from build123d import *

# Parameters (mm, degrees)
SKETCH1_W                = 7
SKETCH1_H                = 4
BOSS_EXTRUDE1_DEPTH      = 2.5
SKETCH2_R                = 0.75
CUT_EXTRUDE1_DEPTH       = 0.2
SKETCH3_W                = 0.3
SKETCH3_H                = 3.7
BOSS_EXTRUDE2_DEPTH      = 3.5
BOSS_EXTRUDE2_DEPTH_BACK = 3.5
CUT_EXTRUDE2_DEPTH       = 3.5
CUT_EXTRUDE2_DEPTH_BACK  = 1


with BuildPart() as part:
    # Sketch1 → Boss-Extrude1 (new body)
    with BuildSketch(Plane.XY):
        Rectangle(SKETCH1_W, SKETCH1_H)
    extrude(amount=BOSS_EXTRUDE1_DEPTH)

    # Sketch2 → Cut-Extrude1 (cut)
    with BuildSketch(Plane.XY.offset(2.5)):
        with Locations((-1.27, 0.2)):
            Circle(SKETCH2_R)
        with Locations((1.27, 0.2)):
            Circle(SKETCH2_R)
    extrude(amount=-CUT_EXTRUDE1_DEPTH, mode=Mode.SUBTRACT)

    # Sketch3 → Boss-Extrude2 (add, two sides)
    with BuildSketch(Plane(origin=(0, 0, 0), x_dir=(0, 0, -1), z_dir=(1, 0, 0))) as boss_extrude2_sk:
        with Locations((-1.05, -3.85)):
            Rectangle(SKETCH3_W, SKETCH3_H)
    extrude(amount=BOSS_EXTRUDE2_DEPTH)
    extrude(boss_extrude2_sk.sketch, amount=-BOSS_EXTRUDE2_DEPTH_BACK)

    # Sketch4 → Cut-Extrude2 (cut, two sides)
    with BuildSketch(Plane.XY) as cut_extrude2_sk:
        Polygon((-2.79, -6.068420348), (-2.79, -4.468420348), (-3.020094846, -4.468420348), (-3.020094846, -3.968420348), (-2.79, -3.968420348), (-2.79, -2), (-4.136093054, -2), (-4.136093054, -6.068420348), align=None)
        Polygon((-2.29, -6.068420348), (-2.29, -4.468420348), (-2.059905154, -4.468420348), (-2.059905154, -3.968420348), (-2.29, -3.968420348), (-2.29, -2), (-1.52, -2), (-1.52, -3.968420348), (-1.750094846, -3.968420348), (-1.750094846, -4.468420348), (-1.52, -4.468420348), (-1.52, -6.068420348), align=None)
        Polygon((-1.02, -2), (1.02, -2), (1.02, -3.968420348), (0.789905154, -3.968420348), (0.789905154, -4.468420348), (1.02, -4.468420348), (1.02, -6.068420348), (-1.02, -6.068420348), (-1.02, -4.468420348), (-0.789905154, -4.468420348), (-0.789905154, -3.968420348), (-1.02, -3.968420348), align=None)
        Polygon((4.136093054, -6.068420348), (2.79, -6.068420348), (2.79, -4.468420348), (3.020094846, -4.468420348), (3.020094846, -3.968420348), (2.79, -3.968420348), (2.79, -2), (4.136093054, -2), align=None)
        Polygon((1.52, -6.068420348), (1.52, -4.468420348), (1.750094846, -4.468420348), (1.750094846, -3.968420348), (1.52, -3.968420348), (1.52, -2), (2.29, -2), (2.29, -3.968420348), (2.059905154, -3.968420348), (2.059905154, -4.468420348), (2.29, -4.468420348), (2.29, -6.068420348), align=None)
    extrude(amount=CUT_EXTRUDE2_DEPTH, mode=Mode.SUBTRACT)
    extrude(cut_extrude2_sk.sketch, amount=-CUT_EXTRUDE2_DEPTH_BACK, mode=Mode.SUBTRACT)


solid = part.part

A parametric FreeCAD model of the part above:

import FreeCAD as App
import Part
import Sketcher


def add_polygon(sketch, points):
    """Adds a closed chain of lines whose ends are joined by coincident constraints."""
    first, n = sketch.GeometryCount, len(points)
    for a, b in zip(points, points[1:] + points[:1]):
        sketch.addGeometry(Part.LineSegment(App.Vector(*a, 0), App.Vector(*b, 0)), False)
    for i in range(n):
        sketch.addConstraint(Sketcher.Constraint("Coincident", first + i, 2, first + (i + 1) % n, 1))

doc = App.newDocument("Part")
params = doc.addObject("Spreadsheet::Sheet", "Params")
for row, (alias, value) in enumerate([
    ("sketch1_width", "7 mm"),
    ("sketch1_height", "4 mm"),
    ("pad1_length", "2.5 mm"),
    ("sketch2_diameter", "1.5 mm"),
    ("pocket1_length", "0.2 mm"),
    ("sketch3_width", "3.7 mm"),
    ("sketch3_height", "0.3 mm"),
    ("pad2_length", "3.5 mm"),
    ("pad2_length2", "3.5 mm"),
    ("sketch4_height", "1.6 mm"),
    ("sketch4_height2", "0.5 mm"),
    ("sketch4_width", "0.77 mm"),
    ("sketch4_width2", "2.04 mm"),
], start=1):
    params.set(f"A{row}", alias)
    params.set(f"B{row}", "=" + value)
    params.setAlias(f"B{row}", alias)

body = doc.addObject("PartDesign::Body", "Body")

# Sketch on XY plane
sketch1 = doc.addObject("Sketcher::SketchObject", "Sketch")
body.addObject(sketch1)
sketch1.AttachmentSupport = (doc.XY_Plane, [""])
sketch1.MapMode = "FlatFace"
add_polygon(sketch1, [(-3.5, 2), (-3.5, -2), (3.5, -2), (3.5, 2)])  # lines 0-3
sketch1.addConstraint([
    Sketcher.Constraint("Vertical", 0),
    Sketcher.Constraint("Horizontal", 1),
    Sketcher.Constraint("Vertical", 2),
    Sketcher.Constraint("Horizontal", 3),
    Sketcher.Constraint("Symmetric", 0, 2, 2, 2, -1, 1),
    Sketcher.Constraint("DistanceX", 1, 1, 1, 2, 7.0),
    Sketcher.Constraint("DistanceY", 0, 2, 0, 1, 4.0),
])
sketch1.setExpression("Constraints[9]", "Params.sketch1_width")
sketch1.setExpression("Constraints[10]", "Params.sketch1_height")
pad1 = doc.addObject("PartDesign::Pad", "Pad")
body.addObject(pad1)
pad1.Profile = sketch1
pad1.setExpression("Length", "Params.pad1_length")

# Sketch on XY plane
sketch2 = doc.addObject("Sketcher::SketchObject", "Sketch001")
body.addObject(sketch2)
sketch2.AttachmentSupport = (doc.XY_Plane, [""])
sketch2.MapMode = "FlatFace"
sketch2.AttachmentOffset = App.Placement(App.Vector(0, 0, 2.5), App.Rotation())
sketch2.addGeometry([
    Part.Circle(App.Vector(-1.3, 0.2, 0), App.Vector(0, 0, 1), 0.8),
    Part.Circle(App.Vector(1.3, 0.2, 0), App.Vector(0, 0, 1), 0.8),
], False)
sketch2.addConstraint([
    Sketcher.Constraint("Equal", 0, 1),
    Sketcher.Constraint("Symmetric", 0, 3, 1, 3, -2),
    Sketcher.Constraint("Diameter", 0, 1.5),
    Sketcher.Constraint("DistanceY", -1, 1, 0, 3, 0.2),
    Sketcher.Constraint("DistanceX", 0, 3, -1, 1, 1.27),
])
sketch2.setExpression("Constraints[2]", "Params.sketch2_diameter")
pocket1 = doc.addObject("PartDesign::Pocket", "Pocket")
body.addObject(pocket1)
pocket1.Profile = sketch2
pocket1.setExpression("Length", "Params.pocket1_length")

# Sketch on YZ plane
sketch3 = doc.addObject("Sketcher::SketchObject", "Sketch002")
body.addObject(sketch3)
sketch3.AttachmentSupport = (doc.YZ_Plane, [""])
sketch3.MapMode = "FlatFace"
add_polygon(sketch3, [(-2, 1.2), (-5.7, 1.2), (-5.7, 0.9), (-2, 0.9)])  # lines 0-3
sketch3.addConstraint([
    Sketcher.Constraint("Horizontal", 0),
    Sketcher.Constraint("Vertical", 1),
    Sketcher.Constraint("Horizontal", 2),
    Sketcher.Constraint("Vertical", 3),
    Sketcher.Constraint("DistanceX", 0, 2, 0, 1, 3.7),
    Sketcher.Constraint("DistanceY", 1, 2, 1, 1, 0.3),
    Sketcher.Constraint("DistanceX", 2, 2, -1, 1, 2.0),
    Sketcher.Constraint("DistanceY", -1, 1, 0, 2, 1.2),
])
sketch3.setExpression("Constraints[8]", "Params.sketch3_width")
sketch3.setExpression("Constraints[9]", "Params.sketch3_height")
pad2 = doc.addObject("PartDesign::Pad", "Pad001")
body.addObject(pad2)
pad2.Profile = sketch3
pad2.Type = "TwoLengths"
pad2.setExpression("Length", "Params.pad2_length")
pad2.setExpression("Length2", "Params.pad2_length2")

# Sketch on XY plane
sketch4 = doc.addObject("Sketcher::SketchObject", "Sketch003")
body.addObject(sketch4)
sketch4.AttachmentSupport = (doc.XY_Plane, [""])
sketch4.MapMode = "FlatFace"
add_polygon(sketch4, [(-2.79, -6.07), (-2.79, -4.47), (-3.02, -4.47), (-3.02, -3.97), (-2.79, -3.97), (-2.79, -2), (-4.14, -2), (-4.14, -6.07)])  # lines 0-7
add_polygon(sketch4, [(-2.29, -4.47), (-2.29, -6.07), (-1.52, -6.07), (-1.52, -4.47), (-1.75, -4.47), (-1.75, -3.97), (-1.52, -3.97), (-1.52, -2), (-2.29, -2), (-2.29, -3.97), (-2.06, -3.97), (-2.06, -4.47)])  # lines 8-19
add_polygon(sketch4, [(1.02, -2), (-1.02, -2), (-1.02, -3.97), (-0.79, -3.97), (-0.79, -4.47), (-1.02, -4.47), (-1.02, -6.07), (1.02, -6.07), (1.02, -4.47), (0.79, -4.47), (0.79, -3.97), (1.02, -3.97)])  # lines 20-31
add_polygon(sketch4, [(2.79, -6.07), (4.14, -6.07), (4.14, -2), (2.79, -2), (2.79, -3.97), (3.02, -3.97), (3.02, -4.47), (2.79, -4.47)])  # lines 32-39
add_polygon(sketch4, [(1.52, -4.47), (1.52, -6.07), (2.29, -6.07), (2.29, -4.47), (2.06, -4.47), (2.06, -3.97), (2.29, -3.97), (2.29, -2), (1.52, -2), (1.52, -3.97), (1.75, -3.97), (1.75, -4.47)])  # lines 40-51
sketch4.addConstraint([
    Sketcher.Constraint("Vertical", 0),
    Sketcher.Constraint("Horizontal", 1),
    Sketcher.Constraint("Vertical", 2),
    Sketcher.Constraint("Horizontal", 3),
    Sketcher.Constraint("Vertical", 4),
    Sketcher.Constraint("Horizontal", 5),
    Sketcher.Constraint("Vertical", 6),
    Sketcher.Constraint("Horizontal", 7),
    Sketcher.Constraint("Vertical", 8),
    Sketcher.Constraint("Horizontal", 9),
    Sketcher.Constraint("Vertical", 10),
    Sketcher.Constraint("Horizontal", 11),
    Sketcher.Constraint("Vertical", 12),
    Sketcher.Constraint("Horizontal", 13),
    Sketcher.Constraint("Vertical", 14),
    Sketcher.Constraint("Horizontal", 15),
    Sketcher.Constraint("Vertical", 16),
    Sketcher.Constraint("Horizontal", 17),
    Sketcher.Constraint("Vertical", 18),
    Sketcher.Constraint("Horizontal", 19),
    Sketcher.Constraint("Horizontal", 20),
    Sketcher.Constraint("Vertical", 21),
    Sketcher.Constraint("Horizontal", 22),
    Sketcher.Constraint("Vertical", 23),
    Sketcher.Constraint("Horizontal", 24),
    Sketcher.Constraint("Vertical", 25),
    Sketcher.Constraint("Horizontal", 26),
    Sketcher.Constraint("Vertical", 27),
    Sketcher.Constraint("Horizontal", 28),
    Sketcher.Constraint("Vertical", 29),
    Sketcher.Constraint("Horizontal", 30),
    Sketcher.Constraint("Vertical", 31),
    Sketcher.Constraint("Horizontal", 32),
    Sketcher.Constraint("Vertical", 33),
    Sketcher.Constraint("Horizontal", 34),
    Sketcher.Constraint("Vertical", 35),
    Sketcher.Constraint("Horizontal", 36),
    Sketcher.Constraint("Vertical", 37),
    Sketcher.Constraint("Horizontal", 38),
    Sketcher.Constraint("Vertical", 39),
    Sketcher.Constraint("Vertical", 40),
    Sketcher.Constraint("Horizontal", 41),
    Sketcher.Constraint("Vertical", 42),
    Sketcher.Constraint("Horizontal", 43),
    Sketcher.Constraint("Vertical", 44),
    Sketcher.Constraint("Horizontal", 45),
    Sketcher.Constraint("Vertical", 46),
    Sketcher.Constraint("Horizontal", 47),
    Sketcher.Constraint("Vertical", 48),
    Sketcher.Constraint("Horizontal", 49),
    Sketcher.Constraint("Vertical", 50),
    Sketcher.Constraint("Horizontal", 51),
    Sketcher.Constraint("Symmetric", 24, 2, 27, 2, -2),
    Sketcher.Constraint("Symmetric", 22, 2, 29, 2, -2),
    Sketcher.Constraint("Symmetric", 6, 2, 32, 2, -2),
    Sketcher.Constraint("Symmetric", 4, 2, 34, 2, -2),
    Sketcher.Constraint("Symmetric", 2, 2, 36, 2, -2),
    Sketcher.Constraint("Symmetric", 0, 2, 38, 2, -2),
    Sketcher.Constraint("Symmetric", 9, 2, 40, 2, -2),
    Sketcher.Constraint("Symmetric", 19, 2, 42, 2, -2),
    Sketcher.Constraint("Symmetric", 17, 2, 44, 2, -2),
    Sketcher.Constraint("Symmetric", 15, 2, 46, 2, -2),
    Sketcher.Constraint("Symmetric", 13, 2, 48, 2, -2),
    Sketcher.Constraint("Symmetric", 11, 2, 50, 2, -2),
    Sketcher.Constraint("Horizontal", 7, 2, 8, 2),
    Sketcher.Constraint("Horizontal", 1, 2, 10, 2),
    Sketcher.Constraint("Horizontal", 3, 2, 12, 2),
    Sketcher.Constraint("Horizontal", 5, 2, 14, 2),
    Sketcher.Constraint("Horizontal", 13, 2, 16, 2),
    Sketcher.Constraint("Horizontal", 11, 2, 18, 2),
    Sketcher.Constraint("Horizontal", 15, 2, 20, 2),
    Sketcher.Constraint("Horizontal", 17, 2, 21, 2),
    Sketcher.Constraint("Horizontal", 19, 2, 23, 2),
    Sketcher.Constraint("Horizontal", 9, 2, 25, 2),
    Sketcher.Constraint("Vertical", 0, 2, 3, 2),
    Sketcher.Constraint("Vertical", 10, 2, 13, 2),
    Sketcher.Constraint("Vertical", 8, 2, 15, 2),
    Sketcher.Constraint("Vertical", 21, 2, 24, 2),
    Sketcher.Constraint("Vertical", 27, 2, 30, 2),
    Sketcher.Constraint("Equal", 3, 11),
    Sketcher.Constraint("Equal", 13, 17),
    Sketcher.Constraint("Equal", 19, 22),
    Sketcher.Constraint("DistanceY", 0, 1, 0, 2, 1.6),
    Sketcher.Constraint("DistanceY", 2, 1, 2, 2, 0.5),
    Sketcher.Constraint("DistanceY", 4, 2, -1, 1, 2.0),
    Sketcher.Constraint("DistanceX", 9, 1, 9, 2, 0.77),
    Sketcher.Constraint("DistanceX", 20, 2, 20, 1, 2.04),
    Sketcher.Constraint("DistanceX", 7, 2, 8, 2, 0.5),
    Sketcher.Constraint("DistanceX", 14, 2, 20, 2, 0.5),
    Sketcher.Constraint("DistanceX", 5, 2, 2, 2, 1.115998),
    Sketcher.Constraint("DistanceY", 4, 1, 4, 2, 1.96842),
    Sketcher.Constraint("DistanceX", 1, 2, 1, 1, 0.230095),
])
sketch4.setExpression("Constraints[134]", "Params.sketch4_height")
sketch4.setExpression("Constraints[135]", "Params.sketch4_height2")
sketch4.setExpression("Constraints[137]", "Params.sketch4_width")
sketch4.setExpression("Constraints[138]", "Params.sketch4_width2")
pocket2 = doc.addObject("PartDesign::Pocket", "Pocket001")
body.addObject(pocket2)
pocket2.Profile = sketch4
pocket2.Type = "ThroughAll"
pocket2.Midplane = True

doc.recompute()
